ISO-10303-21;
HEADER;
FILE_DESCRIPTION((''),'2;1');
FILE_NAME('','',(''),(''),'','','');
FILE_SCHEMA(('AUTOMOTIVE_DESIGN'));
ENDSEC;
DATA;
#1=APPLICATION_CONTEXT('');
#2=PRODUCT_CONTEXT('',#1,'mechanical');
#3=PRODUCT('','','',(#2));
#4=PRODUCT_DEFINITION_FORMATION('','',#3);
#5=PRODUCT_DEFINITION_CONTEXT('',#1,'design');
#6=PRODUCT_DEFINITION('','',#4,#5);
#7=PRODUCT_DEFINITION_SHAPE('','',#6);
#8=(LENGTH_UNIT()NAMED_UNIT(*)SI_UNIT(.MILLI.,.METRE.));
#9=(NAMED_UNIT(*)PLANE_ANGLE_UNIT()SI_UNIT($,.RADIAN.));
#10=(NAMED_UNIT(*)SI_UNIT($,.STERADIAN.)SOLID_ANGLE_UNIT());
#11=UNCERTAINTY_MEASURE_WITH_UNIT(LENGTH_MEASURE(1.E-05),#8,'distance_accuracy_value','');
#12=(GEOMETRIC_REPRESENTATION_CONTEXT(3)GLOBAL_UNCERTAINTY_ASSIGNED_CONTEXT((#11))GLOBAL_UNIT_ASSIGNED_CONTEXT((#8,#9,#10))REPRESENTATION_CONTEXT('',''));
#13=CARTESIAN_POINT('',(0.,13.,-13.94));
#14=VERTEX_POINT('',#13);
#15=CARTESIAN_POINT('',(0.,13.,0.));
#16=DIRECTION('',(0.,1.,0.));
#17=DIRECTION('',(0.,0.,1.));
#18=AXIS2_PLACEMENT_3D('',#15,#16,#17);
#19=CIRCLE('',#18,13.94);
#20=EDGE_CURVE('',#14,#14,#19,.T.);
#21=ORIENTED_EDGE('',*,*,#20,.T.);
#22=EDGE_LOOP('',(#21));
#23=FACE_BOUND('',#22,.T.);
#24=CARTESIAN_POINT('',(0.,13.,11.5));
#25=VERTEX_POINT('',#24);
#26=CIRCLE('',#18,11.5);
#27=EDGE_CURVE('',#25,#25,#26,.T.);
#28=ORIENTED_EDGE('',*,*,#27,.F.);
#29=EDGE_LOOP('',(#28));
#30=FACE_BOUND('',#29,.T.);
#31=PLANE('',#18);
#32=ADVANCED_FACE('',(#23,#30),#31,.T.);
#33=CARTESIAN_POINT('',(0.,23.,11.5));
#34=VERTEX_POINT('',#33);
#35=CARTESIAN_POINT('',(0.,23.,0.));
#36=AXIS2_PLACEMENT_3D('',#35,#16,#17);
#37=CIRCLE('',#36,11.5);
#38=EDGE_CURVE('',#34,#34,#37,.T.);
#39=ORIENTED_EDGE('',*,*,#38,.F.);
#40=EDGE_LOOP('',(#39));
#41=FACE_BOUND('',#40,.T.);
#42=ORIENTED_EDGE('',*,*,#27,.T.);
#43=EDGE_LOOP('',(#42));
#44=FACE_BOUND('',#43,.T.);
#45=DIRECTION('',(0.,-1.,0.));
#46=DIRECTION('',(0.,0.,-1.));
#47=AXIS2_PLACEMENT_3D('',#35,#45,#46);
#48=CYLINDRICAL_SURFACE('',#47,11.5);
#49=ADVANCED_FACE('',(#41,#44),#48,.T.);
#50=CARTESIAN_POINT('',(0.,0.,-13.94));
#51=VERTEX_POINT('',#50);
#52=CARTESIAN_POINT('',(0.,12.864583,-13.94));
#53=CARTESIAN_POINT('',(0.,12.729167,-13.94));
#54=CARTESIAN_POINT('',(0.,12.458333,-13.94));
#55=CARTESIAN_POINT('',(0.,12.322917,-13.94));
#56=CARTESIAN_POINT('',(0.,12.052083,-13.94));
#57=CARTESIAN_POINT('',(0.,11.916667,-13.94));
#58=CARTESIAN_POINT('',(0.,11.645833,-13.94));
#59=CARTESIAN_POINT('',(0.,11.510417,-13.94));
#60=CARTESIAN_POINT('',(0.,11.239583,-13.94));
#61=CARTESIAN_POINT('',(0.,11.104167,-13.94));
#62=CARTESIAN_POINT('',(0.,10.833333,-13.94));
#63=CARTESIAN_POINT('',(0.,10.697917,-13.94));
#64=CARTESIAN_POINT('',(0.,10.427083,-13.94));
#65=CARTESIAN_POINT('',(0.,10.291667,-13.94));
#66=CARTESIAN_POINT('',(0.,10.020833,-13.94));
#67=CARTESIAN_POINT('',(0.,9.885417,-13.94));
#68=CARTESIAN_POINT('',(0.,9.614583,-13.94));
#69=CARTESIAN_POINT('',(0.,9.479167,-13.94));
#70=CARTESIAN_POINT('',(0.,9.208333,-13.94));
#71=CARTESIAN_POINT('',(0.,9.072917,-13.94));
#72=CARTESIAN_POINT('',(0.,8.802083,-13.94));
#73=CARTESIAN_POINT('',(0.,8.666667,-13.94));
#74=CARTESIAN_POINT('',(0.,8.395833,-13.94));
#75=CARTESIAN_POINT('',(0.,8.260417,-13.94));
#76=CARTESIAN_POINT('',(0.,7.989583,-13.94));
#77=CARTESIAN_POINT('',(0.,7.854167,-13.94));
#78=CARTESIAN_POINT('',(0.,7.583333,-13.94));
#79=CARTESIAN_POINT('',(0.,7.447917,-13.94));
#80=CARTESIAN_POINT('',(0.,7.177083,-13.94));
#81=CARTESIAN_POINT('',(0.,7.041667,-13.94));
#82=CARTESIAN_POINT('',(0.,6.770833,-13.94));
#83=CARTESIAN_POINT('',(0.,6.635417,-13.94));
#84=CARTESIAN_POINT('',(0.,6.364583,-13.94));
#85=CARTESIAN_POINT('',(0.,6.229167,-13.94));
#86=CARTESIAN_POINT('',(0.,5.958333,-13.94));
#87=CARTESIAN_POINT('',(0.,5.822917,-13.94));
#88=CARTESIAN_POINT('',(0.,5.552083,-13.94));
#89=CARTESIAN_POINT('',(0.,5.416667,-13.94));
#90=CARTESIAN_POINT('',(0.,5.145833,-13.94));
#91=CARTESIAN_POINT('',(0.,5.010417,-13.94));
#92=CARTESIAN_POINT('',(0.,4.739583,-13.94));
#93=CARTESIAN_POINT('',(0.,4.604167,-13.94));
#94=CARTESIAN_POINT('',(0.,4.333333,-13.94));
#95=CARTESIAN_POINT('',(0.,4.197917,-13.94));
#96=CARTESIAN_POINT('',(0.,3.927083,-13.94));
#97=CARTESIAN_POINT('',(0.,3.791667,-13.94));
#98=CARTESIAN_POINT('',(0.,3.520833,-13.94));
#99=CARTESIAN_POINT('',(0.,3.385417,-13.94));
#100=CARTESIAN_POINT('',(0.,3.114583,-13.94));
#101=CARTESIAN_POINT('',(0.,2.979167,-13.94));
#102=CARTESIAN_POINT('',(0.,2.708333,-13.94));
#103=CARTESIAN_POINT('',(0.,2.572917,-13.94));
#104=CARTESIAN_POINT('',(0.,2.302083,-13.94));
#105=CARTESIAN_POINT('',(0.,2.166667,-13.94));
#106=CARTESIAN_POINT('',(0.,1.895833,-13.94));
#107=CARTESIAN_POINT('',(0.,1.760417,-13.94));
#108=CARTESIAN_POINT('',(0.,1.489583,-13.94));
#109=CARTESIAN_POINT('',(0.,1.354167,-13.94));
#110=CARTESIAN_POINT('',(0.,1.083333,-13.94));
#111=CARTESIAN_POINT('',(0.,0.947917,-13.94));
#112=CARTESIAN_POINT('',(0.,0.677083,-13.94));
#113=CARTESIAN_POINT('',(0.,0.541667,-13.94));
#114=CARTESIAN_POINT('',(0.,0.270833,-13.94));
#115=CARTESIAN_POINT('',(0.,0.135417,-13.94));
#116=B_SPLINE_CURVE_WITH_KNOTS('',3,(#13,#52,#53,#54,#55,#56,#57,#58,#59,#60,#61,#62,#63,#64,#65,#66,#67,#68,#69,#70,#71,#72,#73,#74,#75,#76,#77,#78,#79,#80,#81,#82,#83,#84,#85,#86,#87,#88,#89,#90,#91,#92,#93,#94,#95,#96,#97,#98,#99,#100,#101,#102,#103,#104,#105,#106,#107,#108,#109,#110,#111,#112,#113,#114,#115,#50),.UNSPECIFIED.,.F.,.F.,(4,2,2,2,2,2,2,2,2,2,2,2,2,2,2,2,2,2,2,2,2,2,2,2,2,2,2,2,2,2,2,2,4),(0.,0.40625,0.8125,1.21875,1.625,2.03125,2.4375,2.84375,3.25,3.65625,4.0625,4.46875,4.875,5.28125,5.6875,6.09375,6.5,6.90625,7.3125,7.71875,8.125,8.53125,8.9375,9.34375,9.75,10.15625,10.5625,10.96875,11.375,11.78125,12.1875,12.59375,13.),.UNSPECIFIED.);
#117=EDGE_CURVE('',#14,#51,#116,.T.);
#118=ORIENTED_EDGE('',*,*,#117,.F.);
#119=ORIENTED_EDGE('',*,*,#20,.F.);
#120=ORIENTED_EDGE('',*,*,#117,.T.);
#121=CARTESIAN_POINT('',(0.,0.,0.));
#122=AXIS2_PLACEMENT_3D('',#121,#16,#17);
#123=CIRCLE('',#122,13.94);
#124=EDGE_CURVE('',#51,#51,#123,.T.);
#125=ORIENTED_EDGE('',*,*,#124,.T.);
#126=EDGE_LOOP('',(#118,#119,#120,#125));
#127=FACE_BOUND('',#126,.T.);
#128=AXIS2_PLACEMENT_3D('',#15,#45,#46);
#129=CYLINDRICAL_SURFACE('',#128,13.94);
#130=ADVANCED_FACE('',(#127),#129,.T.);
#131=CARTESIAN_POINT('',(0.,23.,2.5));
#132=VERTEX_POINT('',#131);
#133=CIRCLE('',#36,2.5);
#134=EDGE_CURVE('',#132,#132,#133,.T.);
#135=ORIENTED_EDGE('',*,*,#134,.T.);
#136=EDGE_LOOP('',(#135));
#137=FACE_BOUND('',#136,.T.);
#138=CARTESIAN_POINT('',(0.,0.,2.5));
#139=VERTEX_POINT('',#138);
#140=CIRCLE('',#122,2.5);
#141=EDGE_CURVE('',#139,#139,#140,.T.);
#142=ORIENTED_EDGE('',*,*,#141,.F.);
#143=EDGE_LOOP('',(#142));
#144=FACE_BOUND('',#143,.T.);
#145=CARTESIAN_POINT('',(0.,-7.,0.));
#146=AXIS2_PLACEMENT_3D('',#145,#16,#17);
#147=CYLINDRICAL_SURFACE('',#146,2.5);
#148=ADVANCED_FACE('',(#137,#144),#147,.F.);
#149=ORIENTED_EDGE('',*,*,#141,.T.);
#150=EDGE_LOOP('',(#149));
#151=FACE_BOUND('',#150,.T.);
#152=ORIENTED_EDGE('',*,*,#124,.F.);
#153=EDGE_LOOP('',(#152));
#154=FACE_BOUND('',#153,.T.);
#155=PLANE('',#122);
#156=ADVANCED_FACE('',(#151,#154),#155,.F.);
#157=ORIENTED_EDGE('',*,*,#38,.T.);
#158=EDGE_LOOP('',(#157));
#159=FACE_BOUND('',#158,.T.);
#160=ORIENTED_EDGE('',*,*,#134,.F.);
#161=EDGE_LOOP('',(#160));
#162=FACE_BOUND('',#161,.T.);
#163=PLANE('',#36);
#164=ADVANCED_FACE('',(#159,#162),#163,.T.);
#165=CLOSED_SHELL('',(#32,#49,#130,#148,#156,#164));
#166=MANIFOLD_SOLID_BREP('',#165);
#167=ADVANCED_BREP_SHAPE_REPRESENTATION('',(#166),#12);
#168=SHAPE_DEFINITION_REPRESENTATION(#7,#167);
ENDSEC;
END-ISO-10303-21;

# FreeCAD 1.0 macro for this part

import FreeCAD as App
import Part
import Sketcher

doc = App.newDocument("Part")
body = doc.addObject("PartDesign::Body", "Body")

sketch1 = doc.addObject("Sketcher::SketchObject", "Sketch")
body.addObject(sketch1)
sketch1.AttachmentSupport = (doc.XZ_Plane, [""])
sketch1.MapMode = "FlatFace"
sketch1.addGeometry(Part.Circle(App.Vector(0, 0, 0), App.Vector(0, 0, 1), 14), False)
sketch1.addConstraint(Sketcher.Constraint("Coincident", 0, 3, -1, 1))
sketch1.addConstraint(Sketcher.Constraint("Diameter", 0, 27.88))
pad1 = doc.addObject("PartDesign::Pad", "Pad")
body.addObject(pad1)
pad1.Profile = sketch1
pad1.Length = 13
pad1.Reversed = True

sketch2 = doc.addObject("Sketcher::SketchObject", "Sketch001")
body.addObject(sketch2)
sketch2.AttachmentSupport = (doc.XZ_Plane, [""])
sketch2.MapMode = "FlatFace"
sketch2.AttachmentOffset = App.Placement(App.Vector(0, 0, -13), App.Rotation())
sketch2.addGeometry(Part.Circle(App.Vector(0, 0, 0), App.Vector(0, 0, 1), 12), False)
sketch2.addConstraint(Sketcher.Constraint("Coincident", 0, 3, -1, 1))
sketch2.addConstraint(Sketcher.Constraint("Diameter", 0, 23.0))
pad2 = doc.addObject("PartDesign::Pad", "Pad001")
body.addObject(pad2)
pad2.Profile = sketch2
pad2.Length = 10
pad2.Reversed = True

sketch3 = doc.addObject("Sketcher::SketchObject", "Sketch002")
body.addObject(sketch3)
sketch3.AttachmentSupport = (doc.XZ_Plane, [""])
sketch3.MapMode = "FlatFace"
sketch3.AttachmentOffset = App.Placement(App.Vector(0, 0, -23), App.Rotation())
sketch3.addGeometry(Part.Circle(App.Vector(0, 0, 0), App.Vector(0, 0, 1), 2.5), False)
sketch3.addConstraint(Sketcher.Constraint("Coincident", 0, 3, -1, 1))
sketch3.addConstraint(Sketcher.Constraint("Diameter", 0, 5.0))
pocket1 = doc.addObject("PartDesign::Pocket", "Pocket")
body.addObject(pocket1)
pocket1.Profile = sketch3
pocket1.Length = 30
pocket1.Reversed = True

doc.recompute()
